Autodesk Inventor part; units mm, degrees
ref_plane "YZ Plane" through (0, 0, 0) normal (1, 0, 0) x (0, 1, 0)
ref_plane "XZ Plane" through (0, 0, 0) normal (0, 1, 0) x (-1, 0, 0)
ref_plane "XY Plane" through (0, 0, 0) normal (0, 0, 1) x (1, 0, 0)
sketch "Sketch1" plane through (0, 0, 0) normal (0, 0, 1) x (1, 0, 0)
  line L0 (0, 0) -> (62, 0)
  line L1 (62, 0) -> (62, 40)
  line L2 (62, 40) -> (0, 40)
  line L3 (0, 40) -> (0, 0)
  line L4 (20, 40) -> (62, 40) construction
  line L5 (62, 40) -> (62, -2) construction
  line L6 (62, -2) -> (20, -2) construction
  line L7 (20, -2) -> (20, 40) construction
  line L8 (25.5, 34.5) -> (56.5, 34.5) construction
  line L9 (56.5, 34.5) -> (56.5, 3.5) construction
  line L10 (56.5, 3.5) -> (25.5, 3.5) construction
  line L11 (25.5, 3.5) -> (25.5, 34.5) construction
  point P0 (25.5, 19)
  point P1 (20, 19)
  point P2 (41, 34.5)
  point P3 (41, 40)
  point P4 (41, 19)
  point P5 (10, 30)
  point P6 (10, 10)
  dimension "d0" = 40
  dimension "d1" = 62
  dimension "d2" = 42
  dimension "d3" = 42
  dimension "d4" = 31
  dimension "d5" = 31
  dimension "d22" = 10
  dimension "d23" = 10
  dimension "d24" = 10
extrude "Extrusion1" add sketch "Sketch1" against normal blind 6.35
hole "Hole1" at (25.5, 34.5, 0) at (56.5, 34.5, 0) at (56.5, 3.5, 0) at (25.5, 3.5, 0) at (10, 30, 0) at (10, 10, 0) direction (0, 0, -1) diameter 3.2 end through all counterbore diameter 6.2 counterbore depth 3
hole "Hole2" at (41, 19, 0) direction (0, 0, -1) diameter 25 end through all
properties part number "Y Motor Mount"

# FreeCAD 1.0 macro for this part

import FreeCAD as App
import Part
import Sketcher

V = App.Vector
Q = App.Units.Quantity

doc = App.newDocument("Part")
body = doc.addObject("PartDesign::Body", "Body")

# Sketch on XY plane
sketch1 = body.newObject("Sketcher::SketchObject", "Sketch")
sketch1.AttachmentSupport = (doc.getObject("XY_Plane"), [""])
sketch1.MapMode = "FlatFace"
sketch1.addGeometry(Part.LineSegment(V(0, 40, 0), V(0, 0, 0)), False)
sketch1.addGeometry(Part.LineSegment(V(0, 0, 0), V(62, 0, 0)), False)
sketch1.addGeometry(Part.LineSegment(V(62, 0, 0), V(62, 40, 0)), False)
sketch1.addGeometry(Part.LineSegment(V(62, 40, 0), V(0, 40, 0)), False)
sketch1.addConstraint(Sketcher.Constraint("Coincident", 0, 2, 1, 1))
sketch1.addConstraint(Sketcher.Constraint("Coincident", 1, 2, 2, 1))
sketch1.addConstraint(Sketcher.Constraint("Coincident", 2, 2, 3, 1))
sketch1.addConstraint(Sketcher.Constraint("Coincident", 3, 2, 0, 1))
sketch1.addConstraint(Sketcher.Constraint("Vertical", 0))
sketch1.addConstraint(Sketcher.Constraint("Horizontal", 1))
sketch1.addConstraint(Sketcher.Constraint("Vertical", 2))
sketch1.addConstraint(Sketcher.Constraint("Horizontal", 3))
sketch1.addConstraint(Sketcher.Constraint("Coincident", 0, 2, -1, 1))
sketch1.addConstraint(Sketcher.Constraint("DistanceX", 1, 1, 1, 2, Q("62 mm")))
sketch1.addConstraint(Sketcher.Constraint("DistanceY", 0, 2, 0, 1, Q("40 mm")))
pad1 = body.newObject("PartDesign::Pad", "Pad")
pad1.Profile = sketch1
pad1.Length = 6.35
pad1.Reversed = True

# Sketch on XY plane
sketch2 = body.newObject("Sketcher::SketchObject", "Sketch001")
sketch2.AttachmentSupport = (doc.getObject("XY_Plane"), [""])
sketch2.MapMode = "FlatFace"
sketch2.addGeometry(Part.Circle(V(25.5, 34.5, 0), V(0, 0, 1), 1.6), False)
sketch2.addGeometry(Part.Circle(V(56.5, 34.5, 0), V(0, 0, 1), 1.6), False)
sketch2.addGeometry(Part.Circle(V(56.5, 3.5, 0), V(0, 0, 1), 1.6), False)
sketch2.addGeometry(Part.Circle(V(25.5, 3.5, 0), V(0, 0, 1), 1.6), False)
sketch2.addGeometry(Part.Circle(V(10, 30, 0), V(0, 0, 1), 1.6), False)
sketch2.addGeometry(Part.Circle(V(10, 10, 0), V(0, 0, 1), 1.6), False)
sketch2.addConstraint(Sketcher.Constraint("Equal", 0, 1))
sketch2.addConstraint(Sketcher.Constraint("Equal", 1, 2))
sketch2.addConstraint(Sketcher.Constraint("Equal", 2, 3))
sketch2.addConstraint(Sketcher.Constraint("Equal", 3, 4))
sketch2.addConstraint(Sketcher.Constraint("Equal", 4, 5))
sketch2.addConstraint(Sketcher.Constraint("Horizontal", 0, 3, 1, 3))
sketch2.addConstraint(Sketcher.Constraint("Horizontal", 2, 3, 3, 3))
sketch2.addConstraint(Sketcher.Constraint("Vertical", 1, 3, 2, 3))
sketch2.addConstraint(Sketcher.Constraint("Vertical", 0, 3, 3, 3))
sketch2.addConstraint(Sketcher.Constraint("Vertical", 4, 3, 5, 3))
sketch2.addConstraint(Sketcher.Constraint("Diameter", 0, Q("3.2 mm")))
sketch2.addConstraint(Sketcher.Constraint("DistanceX", -1, 1, 4, 3, Q("10 mm")))
sketch2.addConstraint(Sketcher.Constraint("DistanceY", -1, 1, 4, 3, Q("30 mm")))
sketch2.addConstraint(Sketcher.Constraint("DistanceY", -1, 1, 5, 3, Q("10 mm")))
sketch2.addConstraint(Sketcher.Constraint("DistanceX", 0, 3, 1, 3, Q("31 mm")))
sketch2.addConstraint(Sketcher.Constraint("DistanceY", 2, 3, 1, 3, Q("31 mm")))
sketch2.addConstraint(Sketcher.Constraint("DistanceX", -1, 1, 0, 3, Q("25.5 mm")))
sketch2.addConstraint(Sketcher.Constraint("DistanceY", -1, 1, 0, 3, Q("34.5 mm")))
doc.recompute()
hole = body.newObject("PartDesign::Hole", "Hole")
hole.Profile = sketch2
hole.ThreadType = "None"
hole.Diameter = 3.2
hole.DepthType = "ThroughAll"
hole.HoleCutType = "Counterbore"
hole.HoleCutDiameter = 6.2
hole.HoleCutDepth = 3

# Sketch on XY plane
sketch3 = body.newObject("Sketcher::SketchObject", "Sketch002")
sketch3.AttachmentSupport = (doc.getObject("XY_Plane"), [""])
sketch3.MapMode = "FlatFace"
sketch3.addGeometry(Part.Circle(V(41, 19, 0), V(0, 0, 1), 12.5), False)
sketch3.addConstraint(Sketcher.Constraint("Diameter", 0, Q("25 mm")))
sketch3.addConstraint(Sketcher.Constraint("DistanceX", -1, 1, 0, 3, Q("41 mm")))
sketch3.addConstraint(Sketcher.Constraint("DistanceY", -1, 1, 0, 3, Q("19 mm")))
doc.recompute()
hole2 = body.newObject("PartDesign::Hole", "Hole001")
hole2.Profile = sketch3
hole2.ThreadType = "None"
hole2.Diameter = 25
hole2.DepthType = "ThroughAll"

doc.recompute()
